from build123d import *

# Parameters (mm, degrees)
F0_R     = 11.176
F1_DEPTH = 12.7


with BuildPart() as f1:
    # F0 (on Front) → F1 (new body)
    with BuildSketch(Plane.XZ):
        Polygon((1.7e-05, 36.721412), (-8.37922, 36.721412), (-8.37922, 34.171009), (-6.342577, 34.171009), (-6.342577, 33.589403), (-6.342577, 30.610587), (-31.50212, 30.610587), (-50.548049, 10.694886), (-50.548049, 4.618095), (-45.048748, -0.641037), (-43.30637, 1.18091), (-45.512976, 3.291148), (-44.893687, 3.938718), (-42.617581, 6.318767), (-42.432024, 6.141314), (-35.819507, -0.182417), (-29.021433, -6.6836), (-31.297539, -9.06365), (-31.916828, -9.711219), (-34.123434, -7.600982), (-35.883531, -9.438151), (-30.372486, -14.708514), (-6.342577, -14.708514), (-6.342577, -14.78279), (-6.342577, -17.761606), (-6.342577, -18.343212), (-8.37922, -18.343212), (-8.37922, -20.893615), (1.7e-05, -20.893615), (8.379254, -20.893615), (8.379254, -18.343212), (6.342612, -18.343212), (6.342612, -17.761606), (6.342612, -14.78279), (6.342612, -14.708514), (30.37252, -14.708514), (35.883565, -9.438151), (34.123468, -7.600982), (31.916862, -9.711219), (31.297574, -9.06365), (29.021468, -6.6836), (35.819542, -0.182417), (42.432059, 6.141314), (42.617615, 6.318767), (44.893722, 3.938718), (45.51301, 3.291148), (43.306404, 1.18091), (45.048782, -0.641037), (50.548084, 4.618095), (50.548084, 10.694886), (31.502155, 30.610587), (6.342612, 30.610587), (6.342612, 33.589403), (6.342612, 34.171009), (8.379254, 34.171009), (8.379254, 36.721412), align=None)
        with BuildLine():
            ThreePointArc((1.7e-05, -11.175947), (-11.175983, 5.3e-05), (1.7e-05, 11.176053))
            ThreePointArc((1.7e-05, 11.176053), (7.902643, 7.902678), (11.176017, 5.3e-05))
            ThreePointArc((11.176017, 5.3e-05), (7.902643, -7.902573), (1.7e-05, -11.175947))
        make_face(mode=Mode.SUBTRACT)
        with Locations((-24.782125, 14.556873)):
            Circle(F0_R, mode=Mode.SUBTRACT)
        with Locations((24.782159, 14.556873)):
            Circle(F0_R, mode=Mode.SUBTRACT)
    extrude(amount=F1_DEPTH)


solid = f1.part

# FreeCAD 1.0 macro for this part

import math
import FreeCAD as App
import Part
import Sketcher
Q = App.Units.Quantity

doc = App.newDocument("Part")
body = doc.addObject("PartDesign::Body", "Body")

# Sketch on XZ plane
sketch1 = body.newObject("Sketcher::SketchObject", "Sketch")
sketch1.AttachmentSupport = (doc.getObject("XZ_Plane"), [""])
sketch1.MapMode = "FlatFace"
sketch1.addGeometry(Part.LineSegment(App.Vector(-8.38, 36.72, 0), App.Vector(-8.38, 34.17, 0)), False)
sketch1.addGeometry(Part.LineSegment(App.Vector(-8.38, 34.17, 0), App.Vector(-6.34, 34.17, 0)), False)
sketch1.addGeometry(Part.LineSegment(App.Vector(-6.34, 34.17, 0), App.Vector(-6.34, 30.61, 0)), False)
sketch1.addGeometry(Part.LineSegment(App.Vector(-6.34, 30.61, 0), App.Vector(-31.5, 30.61, 0)), False)
sketch1.addGeometry(Part.LineSegment(App.Vector(-31.5, 30.61, 0), App.Vector(-50.55, 10.69, 0)), False)
sketch1.addGeometry(Part.LineSegment(App.Vector(-50.55, 10.69, 0), App.Vector(-50.55, 4.62, 0)), False)
sketch1.addGeometry(Part.LineSegment(App.Vector(-50.55, 4.62, 0), App.Vector(-45.05, -0.64, 0)), False)
sketch1.addGeometry(Part.LineSegment(App.Vector(-45.05, -0.64, 0), App.Vector(-43.31, 1.18, 0)), False)
sketch1.addGeometry(Part.LineSegment(App.Vector(-43.31, 1.18, 0), App.Vector(-45.51, 3.29, 0)), False)
sketch1.addGeometry(Part.LineSegment(App.Vector(-45.51, 3.29, 0), App.Vector(-44.89, 3.94, 0)), False)
sketch1.addGeometry(Part.LineSegment(App.Vector(-44.89, 3.94, 0), App.Vector(-42.62, 6.32, 0)), False)
sketch1.addGeometry(Part.LineSegment(App.Vector(-42.62, 6.32, 0), App.Vector(-42.43, 6.14, 0)), False)
sketch1.addGeometry(Part.LineSegment(App.Vector(-42.43, 6.14, 0), App.Vector(-35.82, -0.18, 0)), False)
sketch1.addGeometry(Part.LineSegment(App.Vector(-35.82, -0.18, 0), App.Vector(-29.02, -6.68, 0)), False)
sketch1.addGeometry(Part.LineSegment(App.Vector(-29.02, -6.68, 0), App.Vector(-31.3, -9.06, 0)), False)
sketch1.addGeometry(Part.LineSegment(App.Vector(-31.3, -9.06, 0), App.Vector(-31.92, -9.71, 0)), False)
sketch1.addGeometry(Part.LineSegment(App.Vector(-31.92, -9.71, 0), App.Vector(-34.12, -7.6, 0)), False)
sketch1.addGeometry(Part.LineSegment(App.Vector(-34.12, -7.6, 0), App.Vector(-35.88, -9.44, 0)), False)
sketch1.addGeometry(Part.LineSegment(App.Vector(-35.88, -9.44, 0), App.Vector(-30.37, -14.71, 0)), False)
sketch1.addGeometry(Part.LineSegment(App.Vector(-30.37, -14.71, 0), App.Vector(-6.34, -14.71, 0)), False)
sketch1.addGeometry(Part.LineSegment(App.Vector(-6.34, -14.71, 0), App.Vector(-6.34, -18.34, 0)), False)
sketch1.addGeometry(Part.LineSegment(App.Vector(-6.34, -18.34, 0), App.Vector(-8.38, -18.34, 0)), False)
sketch1.addGeometry(Part.LineSegment(App.Vector(-8.38, -18.34, 0), App.Vector(-8.38, -20.89, 0)), False)
sketch1.addGeometry(Part.LineSegment(App.Vector(-8.38, -20.89, 0), App.Vector(8.38, -20.89, 0)), False)
sketch1.addGeometry(Part.LineSegment(App.Vector(8.38, -20.89, 0), App.Vector(8.38, -18.34, 0)), False)
sketch1.addGeometry(Part.LineSegment(App.Vector(8.38, -18.34, 0), App.Vector(6.34, -18.34, 0)), False)
sketch1.addGeometry(Part.LineSegment(App.Vector(6.34, -18.34, 0), App.Vector(6.34, -14.71, 0)), False)
sketch1.addGeometry(Part.LineSegment(App.Vector(6.34, -14.71, 0), App.Vector(30.37, -14.71, 0)), False)
sketch1.addGeometry(Part.LineSegment(App.Vector(30.37, -14.71, 0), App.Vector(35.88, -9.44, 0)), False)
sketch1.addGeometry(Part.LineSegment(App.Vector(35.88, -9.44, 0), App.Vector(34.12, -7.6, 0)), False)
sketch1.addGeometry(Part.LineSegment(App.Vector(34.12, -7.6, 0), App.Vector(31.92, -9.71, 0)), False)
sketch1.addGeometry(Part.LineSegment(App.Vector(31.92, -9.71, 0), App.Vector(31.3, -9.06, 0)), False)
sketch1.addGeometry(Part.LineSegment(App.Vector(31.3, -9.06, 0), App.Vector(29.02, -6.68, 0)), False)
sketch1.addGeometry(Part.LineSegment(App.Vector(29.02, -6.68, 0), App.Vector(35.82, -0.18, 0)), False)
sketch1.addGeometry(Part.LineSegment(App.Vector(35.82, -0.18, 0), App.Vector(42.43, 6.14, 0)), False)
sketch1.addGeometry(Part.LineSegment(App.Vector(42.43, 6.14, 0), App.Vector(42.62, 6.32, 0)), False)
sketch1.addGeometry(Part.LineSegment(App.Vector(42.62, 6.32, 0), App.Vector(44.89, 3.94, 0)), False)
sketch1.addGeometry(Part.LineSegment(App.Vector(44.89, 3.94, 0), App.Vector(45.51, 3.29, 0)), False)
sketch1.addGeometry(Part.LineSegment(App.Vector(45.51, 3.29, 0), App.Vector(43.31, 1.18, 0)), False)
sketch1.addGeometry(Part.LineSegment(App.Vector(43.31, 1.18, 0), App.Vector(45.05, -0.64, 0)), False)
sketch1.addGeometry(Part.LineSegment(App.Vector(45.05, -0.64, 0), App.Vector(50.55, 4.62, 0)), False)
sketch1.addGeometry(Part.LineSegment(App.Vector(50.55, 4.62, 0), App.Vector(50.55, 10.69, 0)), False)
sketch1.addGeometry(Part.LineSegment(App.Vector(50.55, 10.69, 0), App.Vector(31.5, 30.61, 0)), False)
sketch1.addGeometry(Part.LineSegment(App.Vector(31.5, 30.61, 0), App.Vector(6.34, 30.61, 0)), False)
sketch1.addGeometry(Part.LineSegment(App.Vector(6.34, 30.61, 0), App.Vector(6.34, 34.17, 0)), False)
sketch1.addGeometry(Part.LineSegment(App.Vector(6.34, 34.17, 0), App.Vector(8.38, 34.17, 0)), False)
sketch1.addGeometry(Part.LineSegment(App.Vector(8.38, 34.17, 0), App.Vector(8.38, 36.72, 0)), False)
sketch1.addGeometry(Part.LineSegment(App.Vector(8.38, 36.72, 0), App.Vector(-8.38, 36.72, 0)), False)
sketch1.addGeometry(Part.ArcOfCircle(Part.Circle(App.Vector(0, 0, 0), App.Vector(0, 0, 1), 11.18), math.radians(-90), math.radians(0)), False)
sketch1.addGeometry(Part.ArcOfCircle(Part.Circle(App.Vector(0, 0, 0), App.Vector(0, 0, 1), 11.18), math.radians(90), math.radians(270)), False)
sketch1.addGeometry(Part.ArcOfCircle(Part.Circle(App.Vector(0, 0, 0), App.Vector(0, 0, 1), 11.18), math.radians(0), math.radians(90)), False)
sketch1.addGeometry(Part.Circle(App.Vector(-24.78, 14.56, 0), App.Vector(0, 0, 1), 11.18), False)
sketch1.addGeometry(Part.Circle(App.Vector(24.78, 14.56, 0), App.Vector(0, 0, 1), 11.18), False)
sketch1.addConstraint(Sketcher.Constraint("Coincident", 0, 2, 1, 1))
sketch1.addConstraint(Sketcher.Constraint("Coincident", 1, 2, 2, 1))
sketch1.addConstraint(Sketcher.Constraint("Coincident", 2, 2, 3, 1))
sketch1.addConstraint(Sketcher.Constraint("Coincident", 3, 2, 4, 1))
sketch1.addConstraint(Sketcher.Constraint("Coincident", 4, 2, 5, 1))
sketch1.addConstraint(Sketcher.Constraint("Coincident", 5, 2, 6, 1))
sketch1.addConstraint(Sketcher.Constraint("Coincident", 6, 2, 7, 1))
sketch1.addConstraint(Sketcher.Constraint("Coincident", 7, 2, 8, 1))
sketch1.addConstraint(Sketcher.Constraint("Coincident", 8, 2, 9, 1))
sketch1.addConstraint(Sketcher.Constraint("Coincident", 9, 2, 10, 1))
sketch1.addConstraint(Sketcher.Constraint("Coincident", 10, 2, 11, 1))
sketch1.addConstraint(Sketcher.Constraint("Coincident", 11, 2, 12, 1))
sketch1.addConstraint(Sketcher.Constraint("Coincident", 12, 2, 13, 1))
sketch1.addConstraint(Sketcher.Constraint("Coincident", 13, 2, 14, 1))
sketch1.addConstraint(Sketcher.Constraint("Coincident", 14, 2, 15, 1))
sketch1.addConstraint(Sketcher.Constraint("Coincident", 15, 2, 16, 1))
sketch1.addConstraint(Sketcher.Constraint("Coincident", 16, 2, 17, 1))
sketch1.addConstraint(Sketcher.Constraint("Coincident", 17, 2, 18, 1))
sketch1.addConstraint(Sketcher.Constraint("Coincident", 18, 2, 19, 1))
sketch1.addConstraint(Sketcher.Constraint("Coincident", 19, 2, 20, 1))
sketch1.addConstraint(Sketcher.Constraint("Coincident", 20, 2, 21, 1))
sketch1.addConstraint(Sketcher.Constraint("Coincident", 21, 2, 22, 1))
sketch1.addConstraint(Sketcher.Constraint("Coincident", 22, 2, 23, 1))
sketch1.addConstraint(Sketcher.Constraint("Coincident", 23, 2, 24, 1))
sketch1.addConstraint(Sketcher.Constraint("Coincident", 24, 2, 25, 1))
sketch1.addConstraint(Sketcher.Constraint("Coincident", 25, 2, 26, 1))
sketch1.addConstraint(Sketcher.Constraint("Coincident", 26, 2, 27, 1))
sketch1.addConstraint(Sketcher.Constraint("Coincident", 27, 2, 28, 1))
sketch1.addConstraint(Sketcher.Constraint("Coincident", 28, 2, 29, 1))
sketch1.addConstraint(Sketcher.Constraint("Coincident", 29, 2, 30, 1))
sketch1.addConstraint(Sketcher.Constraint("Coincident", 30, 2, 31, 1))
sketch1.addConstraint(Sketcher.Constraint("Coincident", 31, 2, 32, 1))
sketch1.addConstraint(Sketcher.Constraint("Coincident", 32, 2, 33, 1))
sketch1.addConstraint(Sketcher.Constraint("Coincident", 33, 2, 34, 1))
sketch1.addConstraint(Sketcher.Constraint("Coincident", 34, 2, 35, 1))
sketch1.addConstraint(Sketcher.Constraint("Coincident", 35, 2, 36, 1))
sketch1.addConstraint(Sketcher.Constraint("Coincident", 36, 2, 37, 1))
sketch1.addConstraint(Sketcher.Constraint("Coincident", 37, 2, 38, 1))
sketch1.addConstraint(Sketcher.Constraint("Coincident", 38, 2, 39, 1))
sketch1.addConstraint(Sketcher.Constraint("Coincident", 39, 2, 40, 1))
sketch1.addConstraint(Sketcher.Constraint("Coincident", 40, 2, 41, 1))
sketch1.addConstraint(Sketcher.Constraint("Coincident", 41, 2, 42, 1))
sketch1.addConstraint(Sketcher.Constraint("Coincident", 42, 2, 43, 1))
sketch1.addConstraint(Sketcher.Constraint("Coincident", 43, 2, 44, 1))
sketch1.addConstraint(Sketcher.Constraint("Coincident", 44, 2, 45, 1))
sketch1.addConstraint(Sketcher.Constraint("Coincident", 45, 2, 46, 1))
sketch1.addConstraint(Sketcher.Constraint("Coincident", 46, 2, 47, 1))
sketch1.addConstraint(Sketcher.Constraint("Coincident", 47, 2, 0, 1))
sketch1.addConstraint(Sketcher.Constraint("Tangent", 48, 1, 49, 2))
sketch1.addConstraint(Sketcher.Constraint("Tangent", 49, 1, 50, 2))
sketch1.addConstraint(Sketcher.Constraint("Tangent", 50, 1, 48, 2))
sketch1.addConstraint(Sketcher.Constraint("Vertical", 0))
sketch1.addConstraint(Sketcher.Constraint("Horizontal", 1))
sketch1.addConstraint(Sketcher.Constraint("Vertical", 2))
sketch1.addConstraint(Sketcher.Constraint("Horizontal", 3))
sketch1.addConstraint(Sketcher.Constraint("Vertical", 5))
sketch1.addConstraint(Sketcher.Constraint("Horizontal", 19))
sketch1.addConstraint(Sketcher.Constraint("Vertical", 20))
sketch1.addConstraint(Sketcher.Constraint("Horizontal", 21))
sketch1.addConstraint(Sketcher.Constraint("Vertical", 22))
sketch1.addConstraint(Sketcher.Constraint("Horizontal", 23))
sketch1.addConstraint(Sketcher.Constraint("Vertical", 24))
sketch1.addConstraint(Sketcher.Constraint("Horizontal", 25))
sketch1.addConstraint(Sketcher.Constraint("Vertical", 26))
sketch1.addConstraint(Sketcher.Constraint("Horizontal", 27))
sketch1.addConstraint(Sketcher.Constraint("Vertical", 41))
sketch1.addConstraint(Sketcher.Constraint("Horizontal", 43))
sketch1.addConstraint(Sketcher.Constraint("Vertical", 44))
sketch1.addConstraint(Sketcher.Constraint("Horizontal", 45))
sketch1.addConstraint(Sketcher.Constraint("Vertical", 46))
sketch1.addConstraint(Sketcher.Constraint("Horizontal", 47))
sketch1.addConstraint(Sketcher.Constraint("Equal", 50, 51))
sketch1.addConstraint(Sketcher.Constraint("Equal", 51, 52))
sketch1.addConstraint(Sketcher.Constraint("Perpendicular", 4, 6))
sketch1.addConstraint(Sketcher.Constraint("Perpendicular", 6, 7))
sketch1.addConstraint(Sketcher.Constraint("Perpendicular", 7, 8))
sketch1.addConstraint(Sketcher.Constraint("Perpendicular", 8, 9))
sketch1.addConstraint(Sketcher.Constraint("Parallel", 9, 10))
sketch1.addConstraint(Sketcher.Constraint("Perpendicular", 10, 11))
sketch1.addConstraint(Sketcher.Constraint("Parallel", 11, 12))
sketch1.addConstraint(Sketcher.Constraint("Parallel", 12, 13))
sketch1.addConstraint(Sketcher.Constraint("Perpendicular", 13, 14))
sketch1.addConstraint(Sketcher.Constraint("Parallel", 14, 15))
sketch1.addConstraint(Sketcher.Constraint("Perpendicular", 15, 16))
sketch1.addConstraint(Sketcher.Constraint("Parallel", 16, 18))
sketch1.addConstraint(Sketcher.Constraint("Parallel", 28, 30))
sketch1.addConstraint(Sketcher.Constraint("Perpendicular", 30, 31))
sketch1.addConstraint(Sketcher.Constraint("Parallel", 31, 32))
sketch1.addConstraint(Sketcher.Constraint("Perpendicular", 32, 33))
sketch1.addConstraint(Sketcher.Constraint("Parallel", 33, 34))
sketch1.addConstraint(Sketcher.Constraint("Perpendicular", 31, 35))
sketch1.addConstraint(Sketcher.Constraint("Perpendicular", 35, 36))
sketch1.addConstraint(Sketcher.Constraint("Parallel", 36, 37))
sketch1.addConstraint(Sketcher.Constraint("Perpendicular", 37, 38))
sketch1.addConstraint(Sketcher.Constraint("Perpendicular", 38, 39))
sketch1.addConstraint(Sketcher.Constraint("Perpendicular", 39, 40))
sketch1.addConstraint(Sketcher.Constraint("Perpendicular", 40, 42))
sketch1.addConstraint(Sketcher.Constraint("Horizontal", 51, 3, 52, 3))
sketch1.addConstraint(Sketcher.Constraint("Horizontal", 21, 2, 24, 2))
sketch1.addConstraint(Sketcher.Constraint("Horizontal", 19, 2, 26, 2))
sketch1.addConstraint(Sketcher.Constraint("Horizontal", 17, 2, 28, 2))
sketch1.addConstraint(Sketcher.Constraint("Horizontal", 16, 2, 29, 2))
sketch1.addConstraint(Sketcher.Constraint("Horizontal", 15, 2, 30, 2))
sketch1.addConstraint(Sketcher.Constraint("Horizontal", 14, 2, 31, 2))
sketch1.addConstraint(Sketcher.Constraint("Horizontal", 13, 2, 32, 2))
sketch1.addConstraint(Sketcher.Constraint("Horizontal", 12, 2, 33, 2))
sketch1.addConstraint(Sketcher.Constraint("Horizontal", 11, 2, 34, 2))
sketch1.addConstraint(Sketcher.Constraint("Horizontal", 10, 2, 35, 2))
sketch1.addConstraint(Sketcher.Constraint("Horizontal", 9, 2, 36, 2))
sketch1.addConstraint(Sketcher.Constraint("Horizontal", 8, 2, 37, 2))
sketch1.addConstraint(Sketcher.Constraint("Horizontal", 7, 2, 38, 2))
sketch1.addConstraint(Sketcher.Constraint("Horizontal", 6, 2, 39, 2))
sketch1.addConstraint(Sketcher.Constraint("Horizontal", 5, 2, 40, 2))
sketch1.addConstraint(Sketcher.Constraint("Horizontal", 4, 2, 41, 2))
sketch1.addConstraint(Sketcher.Constraint("Horizontal", 3, 2, 42, 2))
sketch1.addConstraint(Sketcher.Constraint("Horizontal", 1, 2, 44, 2))
sketch1.addConstraint(Sketcher.Constraint("Horizontal", 49, 3, 50, 1))
sketch1.addConstraint(Sketcher.Constraint("Vertical", 2, 2, 19, 2))
sketch1.addConstraint(Sketcher.Constraint("Vertical", 0, 2, 21, 2))
sketch1.addConstraint(Sketcher.Constraint("Vertical", 26, 2, 43, 2))
sketch1.addConstraint(Sketcher.Constraint("Vertical", 24, 2, 45, 2))
sketch1.addConstraint(Sketcher.Constraint("Vertical", 50, 3, 48, 1))
sketch1.addConstraint(Sketcher.Constraint("Vertical", 48, 1, 49, 1))
sketch1.addConstraint(Sketcher.Constraint("Equal", 21, 25))
sketch1.addConstraint(Sketcher.Constraint("Equal", 19, 27))
sketch1.addConstraint(Sketcher.Constraint("Equal", 3, 43))
sketch1.addConstraint(Sketcher.Constraint("Equal", 0, 22))
sketch1.addConstraint(Sketcher.Constraint("Equal", 10, 14))
sketch1.addConstraint(Sketcher.Constraint("Equal", 9, 15))
sketch1.addConstraint(Sketcher.Constraint("Equal", 8, 16))
sketch1.addConstraint(Sketcher.Constraint("Equal", 18, 28))
sketch1.addConstraint(Sketcher.Constraint("Diameter", 51, Q("0.88 in")))
sketch1.addConstraint(Sketcher.Constraint("DistanceY", 20, 2, 20, 1, Q("3.634698 mm")))
sketch1.addConstraint(Sketcher.Constraint("DistanceX", 19, 1, 19, 2, Q("24.029909 mm")))
sketch1.addConstraint(Sketcher.Constraint("DistanceX", 25, 2, 25, 1, Q("2.036642 mm")))
sketch1.addConstraint(Sketcher.Constraint("DistanceY", 2, 2, 2, 1, Q("3.560422 mm")))
sketch1.addConstraint(Sketcher.Constraint("DistanceY", 5, 2, 5, 1, Q("6.076791 mm")))
sketch1.addConstraint(Sketcher.Constraint("DistanceY", 13, 2, -1, 1, Q("6.6836 mm")))
sketch1.addConstraint(Sketcher.Constraint("DistanceX", 3, 2, 0, 2, Q("23.1229 mm")))
sketch1.addConstraint(Sketcher.Constraint("DistanceY", 4, 2, 3, 2, Q("19.915701 mm")))
sketch1.addConstraint(Sketcher.Constraint("DistanceX", 5, 2, 6, 2, Q("5.499301 mm")))
sketch1.addConstraint(Sketcher.Constraint("DistanceX", 16, 2, 13, 2, Q("5.102001 mm")))
sketch1.addConstraint(Sketcher.Constraint("DistanceY", 17, 2, 14, 2, Q("0.374501 mm")))
sketch1.addConstraint(Sketcher.Constraint("DistanceY", 22, 2, 19, 2, Q("6.185101 mm")))
sketch1.addConstraint(Sketcher.Constraint("DistanceY", 29, 2, 36, 2, Q("11.5397 mm")))
sketch1.addConstraint(Sketcher.Constraint("Distance", 8, Q("3.05323 mm")))
sketch1.addConstraint(Sketcher.Constraint("Distance", 10, Q("3.293219 mm")))
sketch1.addConstraint(Sketcher.Constraint("Distance", 11, Q("0.256751 mm")))
sketch1.addConstraint(Sketcher.Constraint("DistanceX", 23, 1, 23, 2, Q("16.758474 mm")))
sketch1.addConstraint(Sketcher.Constraint("DistanceX", -1, 1, 52, 3, Q("24.782159 mm")))
sketch1.addConstraint(Sketcher.Constraint("DistanceX", 0, 2, -1, 1, Q("8.37922 mm")))
sketch1.addConstraint(Sketcher.Constraint("DistanceY", -1, 1, 0, 2, Q("34.171009 mm")))
sketch1.addConstraint(Sketcher.Constraint("DistanceX", 4, 2, -1, 1, Q("50.548049 mm")))
sketch1.addConstraint(Sketcher.Constraint("DistanceX", 17, 2, -1, 1, Q("35.883531 mm")))
sketch1.addConstraint(Sketcher.Constraint("DistanceX", -1, 1, 33, 2, Q("35.819542 mm")))
sketch1.addConstraint(Sketcher.Constraint("DistanceY", 49, 3, 51, 3, Q("14.55682 mm")))
sketch1.addConstraint(Sketcher.Constraint("DistanceX", 48, 3, 52, 3, Q("24.78214 mm")))
sketch1.addConstraint(Sketcher.Constraint("DistanceY", 48, 3, 0, 2, Q("34.170958 mm")))
sketch1.addConstraint(Sketcher.Constraint("DistanceX", 51, 3, 1, 2, Q("18.439548 mm")))
pad1 = body.newObject("PartDesign::Pad", "Pad")
pad1.Profile = sketch1
pad1.Length = Q("0.5 in")

doc.recompute()
